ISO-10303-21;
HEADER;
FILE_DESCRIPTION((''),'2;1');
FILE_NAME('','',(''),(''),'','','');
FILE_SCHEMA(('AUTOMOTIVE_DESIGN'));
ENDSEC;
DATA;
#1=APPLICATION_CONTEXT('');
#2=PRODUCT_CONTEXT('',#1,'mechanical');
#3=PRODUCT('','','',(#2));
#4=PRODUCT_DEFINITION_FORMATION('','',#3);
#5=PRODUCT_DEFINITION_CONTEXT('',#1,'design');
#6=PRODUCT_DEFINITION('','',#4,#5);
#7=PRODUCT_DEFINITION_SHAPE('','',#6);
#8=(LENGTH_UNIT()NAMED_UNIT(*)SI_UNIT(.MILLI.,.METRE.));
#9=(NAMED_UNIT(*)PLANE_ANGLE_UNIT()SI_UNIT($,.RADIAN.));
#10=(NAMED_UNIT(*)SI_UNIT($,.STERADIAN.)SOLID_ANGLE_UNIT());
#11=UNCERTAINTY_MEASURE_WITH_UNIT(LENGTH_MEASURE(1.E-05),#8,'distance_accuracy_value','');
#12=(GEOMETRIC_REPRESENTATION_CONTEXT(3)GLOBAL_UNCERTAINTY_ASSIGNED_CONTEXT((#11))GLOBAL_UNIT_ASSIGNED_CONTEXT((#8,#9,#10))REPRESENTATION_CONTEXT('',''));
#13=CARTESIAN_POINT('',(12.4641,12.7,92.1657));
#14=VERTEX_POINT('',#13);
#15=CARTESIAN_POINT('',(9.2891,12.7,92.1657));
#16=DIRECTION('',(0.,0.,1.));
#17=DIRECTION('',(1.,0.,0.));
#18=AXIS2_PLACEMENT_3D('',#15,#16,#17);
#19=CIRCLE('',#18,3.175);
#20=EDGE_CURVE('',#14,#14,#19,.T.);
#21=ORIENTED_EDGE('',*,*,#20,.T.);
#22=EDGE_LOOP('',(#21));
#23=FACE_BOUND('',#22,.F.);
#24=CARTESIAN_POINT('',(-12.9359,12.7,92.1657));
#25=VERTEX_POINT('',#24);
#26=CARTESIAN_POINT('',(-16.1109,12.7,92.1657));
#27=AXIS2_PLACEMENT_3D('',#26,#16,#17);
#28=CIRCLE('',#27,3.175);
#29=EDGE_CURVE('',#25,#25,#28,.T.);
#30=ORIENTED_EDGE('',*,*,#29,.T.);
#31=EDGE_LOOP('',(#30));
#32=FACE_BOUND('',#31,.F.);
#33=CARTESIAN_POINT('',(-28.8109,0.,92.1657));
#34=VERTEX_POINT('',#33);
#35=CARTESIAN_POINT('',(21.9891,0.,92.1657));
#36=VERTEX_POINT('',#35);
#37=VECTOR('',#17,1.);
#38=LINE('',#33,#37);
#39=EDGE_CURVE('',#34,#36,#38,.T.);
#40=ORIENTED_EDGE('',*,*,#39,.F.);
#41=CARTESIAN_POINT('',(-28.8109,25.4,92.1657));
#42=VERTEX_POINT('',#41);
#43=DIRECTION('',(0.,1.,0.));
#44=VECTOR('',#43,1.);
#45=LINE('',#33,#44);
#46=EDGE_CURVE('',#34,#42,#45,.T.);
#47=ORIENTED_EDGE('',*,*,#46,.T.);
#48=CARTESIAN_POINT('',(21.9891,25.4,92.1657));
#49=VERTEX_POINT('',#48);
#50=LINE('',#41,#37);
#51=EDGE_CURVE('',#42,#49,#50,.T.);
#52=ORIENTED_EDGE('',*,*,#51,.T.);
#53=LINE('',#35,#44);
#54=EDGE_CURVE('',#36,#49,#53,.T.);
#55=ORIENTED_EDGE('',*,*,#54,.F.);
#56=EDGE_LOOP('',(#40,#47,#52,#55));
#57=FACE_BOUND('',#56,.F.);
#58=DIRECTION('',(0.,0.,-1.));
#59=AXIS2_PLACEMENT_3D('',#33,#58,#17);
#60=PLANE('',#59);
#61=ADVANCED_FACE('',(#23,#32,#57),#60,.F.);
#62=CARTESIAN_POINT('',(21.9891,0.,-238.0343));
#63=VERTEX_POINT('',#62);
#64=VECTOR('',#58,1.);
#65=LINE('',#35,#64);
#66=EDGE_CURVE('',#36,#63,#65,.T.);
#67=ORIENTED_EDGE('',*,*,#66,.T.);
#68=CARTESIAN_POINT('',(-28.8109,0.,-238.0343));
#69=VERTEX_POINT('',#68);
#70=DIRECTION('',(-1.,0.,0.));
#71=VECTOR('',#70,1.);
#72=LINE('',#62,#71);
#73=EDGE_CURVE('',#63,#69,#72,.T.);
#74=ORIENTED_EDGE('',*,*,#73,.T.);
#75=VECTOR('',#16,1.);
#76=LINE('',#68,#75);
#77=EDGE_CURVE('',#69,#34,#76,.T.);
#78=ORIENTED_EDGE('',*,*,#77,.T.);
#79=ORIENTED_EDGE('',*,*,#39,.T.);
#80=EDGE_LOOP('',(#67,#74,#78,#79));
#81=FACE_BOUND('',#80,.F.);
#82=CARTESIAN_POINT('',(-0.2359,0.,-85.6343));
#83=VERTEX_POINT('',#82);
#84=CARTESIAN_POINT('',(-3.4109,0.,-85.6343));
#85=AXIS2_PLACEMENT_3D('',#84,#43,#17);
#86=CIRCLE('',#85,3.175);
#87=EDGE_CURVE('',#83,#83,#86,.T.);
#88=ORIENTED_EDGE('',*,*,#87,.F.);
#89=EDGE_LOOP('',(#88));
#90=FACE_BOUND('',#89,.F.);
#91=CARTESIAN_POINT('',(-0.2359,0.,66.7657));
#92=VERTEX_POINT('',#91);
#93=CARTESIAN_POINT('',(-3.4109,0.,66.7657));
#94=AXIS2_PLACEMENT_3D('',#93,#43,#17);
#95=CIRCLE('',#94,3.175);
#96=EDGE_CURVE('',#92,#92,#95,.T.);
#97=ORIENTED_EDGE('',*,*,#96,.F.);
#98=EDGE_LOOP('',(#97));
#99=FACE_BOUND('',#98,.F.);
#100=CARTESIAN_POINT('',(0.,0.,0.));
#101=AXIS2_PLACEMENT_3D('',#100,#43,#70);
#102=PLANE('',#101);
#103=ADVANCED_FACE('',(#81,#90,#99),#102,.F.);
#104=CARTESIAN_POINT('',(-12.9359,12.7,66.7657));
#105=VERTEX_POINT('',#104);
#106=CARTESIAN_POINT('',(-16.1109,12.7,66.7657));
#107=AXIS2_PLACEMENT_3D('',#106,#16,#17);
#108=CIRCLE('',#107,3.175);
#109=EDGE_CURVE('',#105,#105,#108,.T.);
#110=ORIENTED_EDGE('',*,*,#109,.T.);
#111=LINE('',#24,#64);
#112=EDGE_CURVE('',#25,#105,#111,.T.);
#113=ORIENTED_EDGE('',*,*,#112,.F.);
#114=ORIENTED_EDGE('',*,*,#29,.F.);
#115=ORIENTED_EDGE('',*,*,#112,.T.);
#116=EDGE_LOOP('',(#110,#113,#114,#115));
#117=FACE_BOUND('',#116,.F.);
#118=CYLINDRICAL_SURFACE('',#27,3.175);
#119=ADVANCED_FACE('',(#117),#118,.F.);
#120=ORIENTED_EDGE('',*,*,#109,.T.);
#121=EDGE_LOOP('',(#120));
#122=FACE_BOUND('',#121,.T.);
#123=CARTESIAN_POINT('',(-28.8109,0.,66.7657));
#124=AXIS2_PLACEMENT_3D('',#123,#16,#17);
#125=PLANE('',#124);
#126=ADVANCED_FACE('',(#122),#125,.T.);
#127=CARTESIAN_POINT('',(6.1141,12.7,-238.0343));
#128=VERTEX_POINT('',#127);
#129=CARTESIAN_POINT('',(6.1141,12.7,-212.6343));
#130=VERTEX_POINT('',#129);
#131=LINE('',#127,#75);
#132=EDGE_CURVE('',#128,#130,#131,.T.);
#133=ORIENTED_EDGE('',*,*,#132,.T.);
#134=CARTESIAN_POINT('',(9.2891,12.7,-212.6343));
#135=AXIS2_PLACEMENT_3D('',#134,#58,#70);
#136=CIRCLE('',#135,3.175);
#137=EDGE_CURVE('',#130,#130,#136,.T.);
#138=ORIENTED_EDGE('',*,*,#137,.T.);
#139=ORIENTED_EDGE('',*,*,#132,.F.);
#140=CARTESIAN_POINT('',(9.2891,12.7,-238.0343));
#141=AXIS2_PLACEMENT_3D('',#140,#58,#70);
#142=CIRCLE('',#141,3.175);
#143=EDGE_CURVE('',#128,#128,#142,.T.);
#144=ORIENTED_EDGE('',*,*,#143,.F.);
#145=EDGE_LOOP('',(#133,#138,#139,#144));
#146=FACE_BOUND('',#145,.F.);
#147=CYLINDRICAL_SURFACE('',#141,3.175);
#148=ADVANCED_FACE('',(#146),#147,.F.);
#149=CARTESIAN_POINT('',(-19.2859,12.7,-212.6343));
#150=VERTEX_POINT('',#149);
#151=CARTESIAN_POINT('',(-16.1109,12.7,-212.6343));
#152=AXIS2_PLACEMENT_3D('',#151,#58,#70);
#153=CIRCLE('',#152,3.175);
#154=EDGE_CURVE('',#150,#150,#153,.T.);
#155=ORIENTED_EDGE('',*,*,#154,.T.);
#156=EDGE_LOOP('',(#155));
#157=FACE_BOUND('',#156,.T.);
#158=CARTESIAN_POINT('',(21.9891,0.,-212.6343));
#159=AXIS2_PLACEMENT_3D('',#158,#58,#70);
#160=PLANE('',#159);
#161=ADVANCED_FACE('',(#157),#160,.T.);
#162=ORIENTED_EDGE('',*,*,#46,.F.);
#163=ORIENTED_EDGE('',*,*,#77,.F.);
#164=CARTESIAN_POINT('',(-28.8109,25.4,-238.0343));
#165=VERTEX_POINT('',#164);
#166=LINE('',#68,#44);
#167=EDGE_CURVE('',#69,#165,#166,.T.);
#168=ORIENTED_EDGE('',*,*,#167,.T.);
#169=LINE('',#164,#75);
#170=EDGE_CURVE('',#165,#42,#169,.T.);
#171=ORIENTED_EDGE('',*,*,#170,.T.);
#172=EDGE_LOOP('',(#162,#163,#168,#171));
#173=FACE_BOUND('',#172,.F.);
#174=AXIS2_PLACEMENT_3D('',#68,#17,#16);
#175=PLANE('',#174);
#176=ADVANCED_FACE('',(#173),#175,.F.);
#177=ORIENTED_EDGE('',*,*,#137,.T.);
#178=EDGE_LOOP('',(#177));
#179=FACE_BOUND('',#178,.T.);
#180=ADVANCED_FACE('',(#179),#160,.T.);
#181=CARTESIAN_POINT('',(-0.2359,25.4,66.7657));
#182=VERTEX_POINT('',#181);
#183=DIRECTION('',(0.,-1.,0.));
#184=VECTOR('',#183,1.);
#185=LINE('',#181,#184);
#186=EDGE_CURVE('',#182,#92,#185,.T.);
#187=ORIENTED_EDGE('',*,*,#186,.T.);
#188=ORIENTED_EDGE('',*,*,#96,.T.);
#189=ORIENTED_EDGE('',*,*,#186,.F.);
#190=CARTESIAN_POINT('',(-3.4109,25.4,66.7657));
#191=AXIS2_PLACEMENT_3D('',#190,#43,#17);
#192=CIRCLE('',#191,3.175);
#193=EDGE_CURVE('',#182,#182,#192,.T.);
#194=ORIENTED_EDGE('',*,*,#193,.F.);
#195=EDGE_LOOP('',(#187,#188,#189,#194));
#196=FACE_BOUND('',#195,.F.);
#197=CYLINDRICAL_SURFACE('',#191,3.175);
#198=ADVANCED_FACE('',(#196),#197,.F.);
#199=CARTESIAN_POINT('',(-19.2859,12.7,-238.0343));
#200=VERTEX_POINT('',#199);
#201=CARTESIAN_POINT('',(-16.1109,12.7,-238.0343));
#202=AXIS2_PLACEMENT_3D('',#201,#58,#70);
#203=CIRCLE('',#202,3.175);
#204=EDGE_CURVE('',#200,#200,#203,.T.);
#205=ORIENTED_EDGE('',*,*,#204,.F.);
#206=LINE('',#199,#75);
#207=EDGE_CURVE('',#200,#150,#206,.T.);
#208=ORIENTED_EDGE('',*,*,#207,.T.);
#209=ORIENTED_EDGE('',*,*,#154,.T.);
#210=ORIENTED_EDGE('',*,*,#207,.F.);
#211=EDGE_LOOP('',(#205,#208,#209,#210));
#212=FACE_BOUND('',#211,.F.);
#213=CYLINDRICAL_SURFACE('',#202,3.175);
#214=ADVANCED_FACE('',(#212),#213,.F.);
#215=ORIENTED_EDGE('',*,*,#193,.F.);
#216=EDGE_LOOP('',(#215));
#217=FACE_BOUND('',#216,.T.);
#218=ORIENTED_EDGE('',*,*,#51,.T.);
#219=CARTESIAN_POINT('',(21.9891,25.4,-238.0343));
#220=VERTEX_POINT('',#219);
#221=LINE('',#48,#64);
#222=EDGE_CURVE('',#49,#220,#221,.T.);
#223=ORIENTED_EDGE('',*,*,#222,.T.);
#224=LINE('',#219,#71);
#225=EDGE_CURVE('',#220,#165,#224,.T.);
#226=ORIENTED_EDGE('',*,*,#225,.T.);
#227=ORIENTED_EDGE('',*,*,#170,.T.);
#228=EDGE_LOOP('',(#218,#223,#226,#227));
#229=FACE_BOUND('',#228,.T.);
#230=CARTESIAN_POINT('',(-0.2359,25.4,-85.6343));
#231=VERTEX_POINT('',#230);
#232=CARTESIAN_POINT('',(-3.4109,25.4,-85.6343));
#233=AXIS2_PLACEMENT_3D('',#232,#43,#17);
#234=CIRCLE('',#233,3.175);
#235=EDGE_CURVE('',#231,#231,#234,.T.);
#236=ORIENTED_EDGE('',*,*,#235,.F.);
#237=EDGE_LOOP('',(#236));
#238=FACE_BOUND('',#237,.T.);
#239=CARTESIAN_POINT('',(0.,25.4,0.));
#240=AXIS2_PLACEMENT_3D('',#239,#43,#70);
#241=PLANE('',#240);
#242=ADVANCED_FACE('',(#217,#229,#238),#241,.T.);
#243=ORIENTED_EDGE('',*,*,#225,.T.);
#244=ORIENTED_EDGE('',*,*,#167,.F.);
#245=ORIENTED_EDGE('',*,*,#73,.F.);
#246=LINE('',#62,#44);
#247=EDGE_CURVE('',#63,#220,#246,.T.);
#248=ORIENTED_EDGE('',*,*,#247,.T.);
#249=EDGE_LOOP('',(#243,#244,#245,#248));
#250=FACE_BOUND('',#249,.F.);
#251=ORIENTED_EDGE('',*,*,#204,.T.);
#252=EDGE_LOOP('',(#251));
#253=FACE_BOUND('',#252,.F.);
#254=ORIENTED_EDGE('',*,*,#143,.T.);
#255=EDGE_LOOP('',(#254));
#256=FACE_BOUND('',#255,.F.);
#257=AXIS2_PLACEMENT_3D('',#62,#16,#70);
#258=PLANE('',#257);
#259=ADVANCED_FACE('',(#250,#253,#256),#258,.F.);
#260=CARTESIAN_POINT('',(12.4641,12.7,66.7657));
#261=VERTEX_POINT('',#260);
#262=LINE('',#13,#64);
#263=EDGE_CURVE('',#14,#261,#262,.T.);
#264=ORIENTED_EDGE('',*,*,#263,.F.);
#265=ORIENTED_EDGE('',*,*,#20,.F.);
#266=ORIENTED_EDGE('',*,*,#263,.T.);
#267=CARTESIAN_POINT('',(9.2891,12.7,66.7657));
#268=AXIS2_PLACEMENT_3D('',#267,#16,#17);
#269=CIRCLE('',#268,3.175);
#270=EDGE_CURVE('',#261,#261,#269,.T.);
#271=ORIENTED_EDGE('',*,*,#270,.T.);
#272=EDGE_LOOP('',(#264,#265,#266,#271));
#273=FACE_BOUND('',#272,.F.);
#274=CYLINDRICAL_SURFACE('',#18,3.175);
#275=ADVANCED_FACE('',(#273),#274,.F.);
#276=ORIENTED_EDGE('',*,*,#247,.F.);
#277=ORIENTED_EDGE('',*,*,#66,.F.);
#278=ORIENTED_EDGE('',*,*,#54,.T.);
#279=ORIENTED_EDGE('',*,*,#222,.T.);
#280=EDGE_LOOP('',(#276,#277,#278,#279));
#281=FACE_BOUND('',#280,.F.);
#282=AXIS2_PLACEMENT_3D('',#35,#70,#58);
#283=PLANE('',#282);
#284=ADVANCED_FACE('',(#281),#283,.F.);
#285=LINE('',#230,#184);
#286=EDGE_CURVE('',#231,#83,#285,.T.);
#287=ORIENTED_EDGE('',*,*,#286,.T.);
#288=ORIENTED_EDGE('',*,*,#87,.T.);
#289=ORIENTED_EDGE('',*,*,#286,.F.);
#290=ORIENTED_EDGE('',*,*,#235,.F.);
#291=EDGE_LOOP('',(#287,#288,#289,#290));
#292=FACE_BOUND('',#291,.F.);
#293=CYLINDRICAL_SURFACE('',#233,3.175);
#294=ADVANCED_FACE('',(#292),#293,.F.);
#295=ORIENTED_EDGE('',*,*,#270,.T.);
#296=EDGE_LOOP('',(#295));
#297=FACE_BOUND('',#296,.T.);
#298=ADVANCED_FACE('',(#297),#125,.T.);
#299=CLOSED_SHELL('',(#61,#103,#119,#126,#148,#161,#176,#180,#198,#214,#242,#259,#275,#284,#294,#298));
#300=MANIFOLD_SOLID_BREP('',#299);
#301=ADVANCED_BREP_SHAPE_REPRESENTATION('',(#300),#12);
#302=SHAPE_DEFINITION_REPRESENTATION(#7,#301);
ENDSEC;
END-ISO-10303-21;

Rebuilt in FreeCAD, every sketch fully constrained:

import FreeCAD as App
import Part
import Sketcher

V = App.Vector
Q = App.Units.Quantity

doc = App.newDocument("Part")
body = doc.addObject("PartDesign::Body", "Body")

# Sketch on XZ plane
sketch1 = doc.addObject("Sketcher::SketchObject", "Sketch")
body.addObject(sketch1)
sketch1.AttachmentSupport = (doc.XZ_Plane, [""])
sketch1.MapMode = "FlatFace"
sketch1.addGeometry([
    Part.LineSegment(V(-28.8109, -238.0343, 0), V(-28.8109, 92.1657, 0)),
    Part.LineSegment(V(-28.8109, 92.1657, 0), V(21.9891, 92.1657, 0)),
    Part.LineSegment(V(21.9891, 92.1657, 0), V(21.9891, -238.0343, 0)),
    Part.LineSegment(V(21.9891, -238.0343, 0), V(-28.8109, -238.0343, 0)),
], False)
sketch1.addConstraint([
    Sketcher.Constraint("Coincident", 0, 2, 1, 1),
    Sketcher.Constraint("Coincident", 1, 2, 2, 1),
    Sketcher.Constraint("Coincident", 2, 2, 3, 1),
    Sketcher.Constraint("Coincident", 3, 2, 0, 1),
    Sketcher.Constraint("Vertical", 0),
    Sketcher.Constraint("Horizontal", 1),
    Sketcher.Constraint("Vertical", 2),
    Sketcher.Constraint("Horizontal", 3),
    Sketcher.Constraint("DistanceX", 1, 1, 1, 2, Q("2 in")),
    Sketcher.Constraint("DistanceY", 0, 1, 0, 2, Q("13 in")),
    Sketcher.Constraint("DistanceX", 0, 2, -1, 1, Q("1.1342913 in")),
    Sketcher.Constraint("DistanceY", -1, 1, 0, 2, Q("92.1657 mm")),
])
pad1 = doc.addObject("PartDesign::Pad", "Pad")
body.addObject(pad1)
pad1.Profile = sketch1
pad1.Length = Q("1 in")
pad1.Reversed = True

# Sketch on XY plane
sketch2 = doc.addObject("Sketcher::SketchObject", "Sketch001")
body.addObject(sketch2)
sketch2.AttachmentSupport = (doc.XY_Plane, [""])
sketch2.MapMode = "FlatFace"
sketch2.AttachmentOffset = App.Placement(V(0, 0, 92.1657), App.Rotation())
sketch2.addGeometry([
    Part.Circle(V(-16.1109, 12.7, 0), V(0, 0, 1), 3.175),
    Part.Circle(V(9.2891, 12.7, 0), V(0, 0, 1), 3.175),
], False)
sketch2.addConstraint([
    Sketcher.Constraint("Equal", 0, 1),
    Sketcher.Constraint("Horizontal", 0, 3, 1, 3),
    Sketcher.Constraint("Diameter", 0, Q("0.25 in")),
    Sketcher.Constraint("DistanceY", -1, 1, 0, 3, Q("0.5 in")),
    Sketcher.Constraint("DistanceX", 0, 3, 1, 3, Q("1 in")),
    Sketcher.Constraint("DistanceX", 0, 3, -1, 1, Q("0.6342913 in")),
])
pocket1 = doc.addObject("PartDesign::Pocket", "Pocket")
body.addObject(pocket1)
pocket1.Profile = sketch2
pocket1.Length = Q("1 in")

# Sketch on XY plane
sketch3 = doc.addObject("Sketcher::SketchObject", "Sketch002")
body.addObject(sketch3)
sketch3.AttachmentSupport = (doc.XY_Plane, [""])
sketch3.MapMode = "FlatFace"
sketch3.AttachmentOffset = App.Placement(V(0, 0, -238.0343), App.Rotation())
sketch3.addGeometry([
    Part.Circle(V(9.2891, 12.7, 0), V(0, 0, 1), 3.175),
    Part.Circle(V(-16.1109, 12.7, 0), V(0, 0, 1), 3.175),
], False)
sketch3.addConstraint([
    Sketcher.Constraint("Equal", 0, 1),
    Sketcher.Constraint("Horizontal", 0, 3, 1, 3),
    Sketcher.Constraint("Diameter", 0, Q("0.25 in")),
    Sketcher.Constraint("DistanceX", 1, 3, 0, 3, Q("1 in")),
    Sketcher.Constraint("DistanceY", -1, 1, 0, 3, Q("0.5 in")),
    Sketcher.Constraint("DistanceX", -1, 1, 0, 3, Q("0.3657087 in")),
])
pocket2 = doc.addObject("PartDesign::Pocket", "Pocket001")
body.addObject(pocket2)
pocket2.Profile = sketch3
pocket2.Length = Q("1 in")
pocket2.Reversed = True

# Sketch on XZ plane
sketch4 = doc.addObject("Sketcher::SketchObject", "Sketch003")
body.addObject(sketch4)
sketch4.AttachmentSupport = (doc.XZ_Plane, [""])
sketch4.MapMode = "FlatFace"
sketch4.AttachmentOffset = App.Placement(V(0, 0, -1 * 25.4), App.Rotation())
sketch4.addGeometry([
    Part.Circle(V(-3.4109, 66.7657, 0), V(0, 0, 1), 3.175),
    Part.Circle(V(-3.4109, -85.6343, 0), V(0, 0, 1), 3.175),
], False)
sketch4.addConstraint([
    Sketcher.Constraint("Equal", 0, 1),
    Sketcher.Constraint("Vertical", 0, 3, 1, 3),
    Sketcher.Constraint("Diameter", 0, Q("0.25 in")),
    Sketcher.Constraint("DistanceY", 1, 3, 0, 3, Q("6 in")),
    Sketcher.Constraint("DistanceX", 0, 3, -1, 1, Q("0.1342913 in")),
    Sketcher.Constraint("DistanceY", -1, 1, 0, 3, Q("66.7657 mm")),
])
pocket3 = doc.addObject("PartDesign::Pocket", "Pocket002")
body.addObject(pocket3)
pocket3.Profile = sketch4
pocket3.Type = "ThroughAll"
pocket3.Reversed = True

doc.recompute()
